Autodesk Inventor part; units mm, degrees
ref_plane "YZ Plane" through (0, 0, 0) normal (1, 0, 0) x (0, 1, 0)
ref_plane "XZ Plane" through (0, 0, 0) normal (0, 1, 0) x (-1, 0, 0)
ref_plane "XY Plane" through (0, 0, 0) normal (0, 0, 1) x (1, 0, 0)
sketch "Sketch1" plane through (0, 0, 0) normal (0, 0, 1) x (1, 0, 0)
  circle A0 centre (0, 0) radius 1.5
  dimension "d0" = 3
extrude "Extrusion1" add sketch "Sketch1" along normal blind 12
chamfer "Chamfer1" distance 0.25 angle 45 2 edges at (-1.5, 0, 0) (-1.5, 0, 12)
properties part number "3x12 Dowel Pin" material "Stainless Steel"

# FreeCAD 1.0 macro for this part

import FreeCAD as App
import Part
import Sketcher


def edges_at(feature, points):
    """Names of the edges that pass closest to the given points."""
    edges = feature.Shape.Edges
    near = lambda p: min(range(len(edges)), key=lambda i: edges[i].distToShape(Part.Vertex(*p))[0])
    return sorted({f"Edge{near(p) + 1}" for p in points})

doc = App.newDocument("Part")
body = doc.addObject("PartDesign::Body", "Body")

sketch1 = body.newObject("Sketcher::SketchObject", "Sketch")
sketch1.AttachmentSupport = (doc.getObject("XY_Plane"), [""])
sketch1.MapMode = "FlatFace"
sketch1.addGeometry(Part.Circle(App.Vector(0, 0, 0), App.Vector(0, 0, 1), 1.5), False)
sketch1.addConstraint(Sketcher.Constraint("Coincident", 0, 3, -1, 1))
sketch1.addConstraint(Sketcher.Constraint("Diameter", 0, 3.0))
pad1 = body.newObject("PartDesign::Pad", "Pad")
pad1.Profile = sketch1
pad1.Length = 12
doc.recompute()

chamfer = body.newObject("PartDesign::Chamfer", "Chamfer")
chamfer.Base = (pad1, edges_at(pad1, [(-1.5, 0, 0), (-1.5, 0, 12)]))
chamfer.Size = 0.25

doc.recompute()
